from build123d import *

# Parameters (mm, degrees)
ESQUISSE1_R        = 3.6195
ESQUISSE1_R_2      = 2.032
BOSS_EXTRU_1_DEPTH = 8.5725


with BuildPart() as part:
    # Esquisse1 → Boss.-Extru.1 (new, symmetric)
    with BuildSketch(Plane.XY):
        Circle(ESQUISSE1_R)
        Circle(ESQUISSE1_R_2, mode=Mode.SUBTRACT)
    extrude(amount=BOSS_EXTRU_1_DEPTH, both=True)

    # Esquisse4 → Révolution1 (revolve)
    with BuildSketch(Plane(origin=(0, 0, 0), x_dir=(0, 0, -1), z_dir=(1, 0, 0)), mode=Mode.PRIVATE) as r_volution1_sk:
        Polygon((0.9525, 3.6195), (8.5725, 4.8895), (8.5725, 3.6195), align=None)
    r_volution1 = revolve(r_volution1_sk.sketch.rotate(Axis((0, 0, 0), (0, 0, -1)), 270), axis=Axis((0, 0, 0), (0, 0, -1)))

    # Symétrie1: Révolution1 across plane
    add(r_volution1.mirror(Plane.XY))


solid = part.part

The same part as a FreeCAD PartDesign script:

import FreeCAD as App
import Part
import Sketcher
from FreeCAD import Vector
Q = App.Units.Quantity


def add_polygon(sketch, points):
    """Adds a closed chain of lines whose ends are joined by coincident constraints."""
    first, n = sketch.GeometryCount, len(points)
    for a, b in zip(points, points[1:] + points[:1]):
        sketch.addGeometry(Part.LineSegment(App.Vector(*a, 0), App.Vector(*b, 0)), False)
    for i in range(n):
        sketch.addConstraint(Sketcher.Constraint("Coincident", first + i, 2, first + (i + 1) % n, 1))

doc = App.newDocument("Part")
body = doc.addObject("PartDesign::Body", "Body")

sketch1 = doc.addObject("Sketcher::SketchObject", "Sketch")
body.addObject(sketch1)
sketch1.AttachmentSupport = (doc.XY_Plane, [""])
sketch1.MapMode = "FlatFace"
sketch1.addGeometry([
    Part.Circle(Vector(0, 0, 0), Vector(0, 0, 1), 3.6),
    Part.Circle(Vector(0, 0, 0), Vector(0, 0, 1), 2),
], False)
sketch1.addConstraint([
    Sketcher.Constraint("Coincident", 0, 3, -1, 1),
    Sketcher.Constraint("Coincident", 1, 3, -1, 1),
    Sketcher.Constraint("Diameter", 1, Q("0.16 in")),
    Sketcher.Constraint("Diameter", 0, Q("0.285 in")),
])
pad1 = doc.addObject("PartDesign::Pad", "Pad")
body.addObject(pad1)
pad1.Profile = sketch1
pad1.Length = Q("0.675 in")
pad1.Midplane = True

sketch2 = doc.addObject("Sketcher::SketchObject", "Sketch001")
body.addObject(sketch2)
sketch2.AttachmentSupport = (doc.YZ_Plane, [""])
sketch2.MapMode = "FlatFace"
add_polygon(sketch2, [(4.9, -8.6), (3.6, -1), (3.6, -8.6)])
sketch2.addConstraint([
    Sketcher.Constraint("Vertical", 1),
    Sketcher.Constraint("Horizontal", 2),
    Sketcher.Constraint("DistanceY", 1, 2, 1, 1, Q("0.3 in")),
    Sketcher.Constraint("DistanceX", 2, 1, 2, 2, Q("0.05 in")),
    Sketcher.Constraint("DistanceX", -1, 1, 0, 2, Q("0.1425 in")),
    Sketcher.Constraint("DistanceY", 0, 2, -1, 1, Q("0.0375 in")),
])
revolution = doc.addObject("PartDesign::Revolution", "Revolution")
body.addObject(revolution)
revolution.Profile = sketch2
revolution.ReferenceAxis = (sketch2, ["V_Axis"])
revolution.Angle = 360
doc.recompute()

mirrored = doc.addObject("PartDesign::Mirrored", "Mirrored")
body.addObject(mirrored)
mirrored.Originals = [revolution]
mirrored.MirrorPlane = (doc.XY_Plane, [""])
body.Tip = mirrored

doc.recompute()
